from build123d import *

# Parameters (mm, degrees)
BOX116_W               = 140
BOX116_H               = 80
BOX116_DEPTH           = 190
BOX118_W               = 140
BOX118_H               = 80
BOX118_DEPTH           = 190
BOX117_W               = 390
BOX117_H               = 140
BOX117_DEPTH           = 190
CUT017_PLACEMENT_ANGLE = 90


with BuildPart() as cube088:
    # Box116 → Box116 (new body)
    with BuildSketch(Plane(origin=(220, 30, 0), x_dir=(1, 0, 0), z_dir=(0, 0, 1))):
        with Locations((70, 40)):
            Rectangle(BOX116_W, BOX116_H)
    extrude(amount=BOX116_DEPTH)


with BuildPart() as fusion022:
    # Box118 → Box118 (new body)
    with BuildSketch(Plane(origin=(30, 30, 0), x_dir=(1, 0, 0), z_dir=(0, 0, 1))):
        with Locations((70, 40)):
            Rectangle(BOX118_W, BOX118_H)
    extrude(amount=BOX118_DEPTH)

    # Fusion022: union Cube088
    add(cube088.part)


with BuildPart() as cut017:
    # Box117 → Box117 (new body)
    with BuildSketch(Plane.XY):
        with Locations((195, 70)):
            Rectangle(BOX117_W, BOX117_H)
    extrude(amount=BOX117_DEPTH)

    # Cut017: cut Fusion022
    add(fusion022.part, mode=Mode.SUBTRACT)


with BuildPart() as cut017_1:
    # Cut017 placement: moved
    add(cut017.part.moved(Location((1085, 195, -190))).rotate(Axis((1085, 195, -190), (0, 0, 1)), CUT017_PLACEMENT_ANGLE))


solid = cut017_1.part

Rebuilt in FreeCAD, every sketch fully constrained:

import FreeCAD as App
import Part
import Sketcher
from FreeCAD import Vector
Q = App.Units.Quantity

doc = App.newDocument("Part")
body = doc.addObject("PartDesign::Body", "Body")

# Sketch on XY plane
sketch1 = body.newObject("Sketcher::SketchObject", "Sketch")
sketch1.AttachmentSupport = (doc.getObject("XY_Plane"), [""])
sketch1.MapMode = "FlatFace"
sketch1.addGeometry([
    Part.LineSegment(Vector(220, 110, 0), Vector(220, 30, 0)),
    Part.LineSegment(Vector(220, 30, 0), Vector(360, 30, 0)),
    Part.LineSegment(Vector(360, 30, 0), Vector(360, 110, 0)),
    Part.LineSegment(Vector(360, 110, 0), Vector(220, 110, 0)),
], False)
sketch1.addConstraint([
    Sketcher.Constraint("Coincident", 0, 2, 1, 1),
    Sketcher.Constraint("Coincident", 1, 2, 2, 1),
    Sketcher.Constraint("Coincident", 2, 2, 3, 1),
    Sketcher.Constraint("Coincident", 3, 2, 0, 1),
    Sketcher.Constraint("Vertical", 0),
    Sketcher.Constraint("Horizontal", 1),
    Sketcher.Constraint("Vertical", 2),
    Sketcher.Constraint("Horizontal", 3),
    Sketcher.Constraint("DistanceX", 1, 1, 1, 2, Q("140 mm")),
    Sketcher.Constraint("DistanceY", 0, 2, 0, 1, Q("80 mm")),
    Sketcher.Constraint("DistanceX", -1, 1, 0, 2, Q("220 mm")),
    Sketcher.Constraint("DistanceY", -1, 1, 0, 2, Q("30 mm")),
])
pad1 = body.newObject("PartDesign::Pad", "Pad")
pad1.Profile = sketch1
pad1.Length = 190
body2 = doc.addObject("PartDesign::Body", "Body001")
body2.AllowCompound = True

# Sketch on XY plane
sketch2 = body2.newObject("Sketcher::SketchObject", "Sketch001")
sketch2.AttachmentSupport = (doc.getObject("XY_Plane001"), [""])
sketch2.MapMode = "FlatFace"
sketch2.addGeometry([
    Part.LineSegment(Vector(30, 110, 0), Vector(30, 30, 0)),
    Part.LineSegment(Vector(30, 30, 0), Vector(170, 30, 0)),
    Part.LineSegment(Vector(170, 30, 0), Vector(170, 110, 0)),
    Part.LineSegment(Vector(170, 110, 0), Vector(30, 110, 0)),
], False)
sketch2.addConstraint([
    Sketcher.Constraint("Coincident", 0, 2, 1, 1),
    Sketcher.Constraint("Coincident", 1, 2, 2, 1),
    Sketcher.Constraint("Coincident", 2, 2, 3, 1),
    Sketcher.Constraint("Coincident", 3, 2, 0, 1),
    Sketcher.Constraint("Vertical", 0),
    Sketcher.Constraint("Horizontal", 1),
    Sketcher.Constraint("Vertical", 2),
    Sketcher.Constraint("Horizontal", 3),
    Sketcher.Constraint("DistanceX", 1, 1, 1, 2, Q("140 mm")),
    Sketcher.Constraint("DistanceY", 0, 2, 0, 1, Q("80 mm")),
    Sketcher.Constraint("DistanceX", -1, 1, 0, 2, Q("30 mm")),
    Sketcher.Constraint("DistanceY", -1, 1, 0, 2, Q("30 mm")),
])
pad2 = body2.newObject("PartDesign::Pad", "Pad001")
pad2.Profile = sketch2
pad2.Length = 190
doc.recompute()

boolean = body2.newObject("PartDesign::Boolean", "Boolean")
boolean.Type = "Fuse"
boolean.addObjects([body])
body3 = doc.addObject("PartDesign::Body", "Body002")

# Sketch on XY plane
sketch3 = body3.newObject("Sketcher::SketchObject", "Sketch002")
sketch3.AttachmentSupport = (doc.getObject("XY_Plane002"), [""])
sketch3.MapMode = "FlatFace"
sketch3.addGeometry([
    Part.LineSegment(Vector(0, 140, 0), Vector(0, 0, 0)),
    Part.LineSegment(Vector(0, 0, 0), Vector(390, 0, 0)),
    Part.LineSegment(Vector(390, 0, 0), Vector(390, 140, 0)),
    Part.LineSegment(Vector(390, 140, 0), Vector(0, 140, 0)),
], False)
sketch3.addConstraint([
    Sketcher.Constraint("Coincident", 0, 2, 1, 1),
    Sketcher.Constraint("Coincident", 1, 2, 2, 1),
    Sketcher.Constraint("Coincident", 2, 2, 3, 1),
    Sketcher.Constraint("Coincident", 3, 2, 0, 1),
    Sketcher.Constraint("Vertical", 0),
    Sketcher.Constraint("Horizontal", 1),
    Sketcher.Constraint("Vertical", 2),
    Sketcher.Constraint("Horizontal", 3),
    Sketcher.Constraint("Coincident", 0, 2, -1, 1),
    Sketcher.Constraint("DistanceX", 1, 1, 1, 2, Q("390 mm")),
    Sketcher.Constraint("DistanceY", 0, 2, 0, 1, Q("140 mm")),
])
pad3 = body3.newObject("PartDesign::Pad", "Pad002")
pad3.Profile = sketch3
pad3.Length = 190
doc.recompute()

boolean2 = body3.newObject("PartDesign::Boolean", "Boolean001")
boolean2.Type = "Cut"
boolean2.addObjects([body2])
body4 = doc.addObject("PartDesign::Body", "Body003")
doc.recompute()

body3.Placement = App.Placement(Vector(1085, 195, -190), App.Rotation(Vector(0, 0, 1), 90))
boolean3 = body4.newObject("PartDesign::Boolean", "Boolean002")
boolean3.Type = "Fuse"
boolean3.addObjects([body3])

doc.recompute()
